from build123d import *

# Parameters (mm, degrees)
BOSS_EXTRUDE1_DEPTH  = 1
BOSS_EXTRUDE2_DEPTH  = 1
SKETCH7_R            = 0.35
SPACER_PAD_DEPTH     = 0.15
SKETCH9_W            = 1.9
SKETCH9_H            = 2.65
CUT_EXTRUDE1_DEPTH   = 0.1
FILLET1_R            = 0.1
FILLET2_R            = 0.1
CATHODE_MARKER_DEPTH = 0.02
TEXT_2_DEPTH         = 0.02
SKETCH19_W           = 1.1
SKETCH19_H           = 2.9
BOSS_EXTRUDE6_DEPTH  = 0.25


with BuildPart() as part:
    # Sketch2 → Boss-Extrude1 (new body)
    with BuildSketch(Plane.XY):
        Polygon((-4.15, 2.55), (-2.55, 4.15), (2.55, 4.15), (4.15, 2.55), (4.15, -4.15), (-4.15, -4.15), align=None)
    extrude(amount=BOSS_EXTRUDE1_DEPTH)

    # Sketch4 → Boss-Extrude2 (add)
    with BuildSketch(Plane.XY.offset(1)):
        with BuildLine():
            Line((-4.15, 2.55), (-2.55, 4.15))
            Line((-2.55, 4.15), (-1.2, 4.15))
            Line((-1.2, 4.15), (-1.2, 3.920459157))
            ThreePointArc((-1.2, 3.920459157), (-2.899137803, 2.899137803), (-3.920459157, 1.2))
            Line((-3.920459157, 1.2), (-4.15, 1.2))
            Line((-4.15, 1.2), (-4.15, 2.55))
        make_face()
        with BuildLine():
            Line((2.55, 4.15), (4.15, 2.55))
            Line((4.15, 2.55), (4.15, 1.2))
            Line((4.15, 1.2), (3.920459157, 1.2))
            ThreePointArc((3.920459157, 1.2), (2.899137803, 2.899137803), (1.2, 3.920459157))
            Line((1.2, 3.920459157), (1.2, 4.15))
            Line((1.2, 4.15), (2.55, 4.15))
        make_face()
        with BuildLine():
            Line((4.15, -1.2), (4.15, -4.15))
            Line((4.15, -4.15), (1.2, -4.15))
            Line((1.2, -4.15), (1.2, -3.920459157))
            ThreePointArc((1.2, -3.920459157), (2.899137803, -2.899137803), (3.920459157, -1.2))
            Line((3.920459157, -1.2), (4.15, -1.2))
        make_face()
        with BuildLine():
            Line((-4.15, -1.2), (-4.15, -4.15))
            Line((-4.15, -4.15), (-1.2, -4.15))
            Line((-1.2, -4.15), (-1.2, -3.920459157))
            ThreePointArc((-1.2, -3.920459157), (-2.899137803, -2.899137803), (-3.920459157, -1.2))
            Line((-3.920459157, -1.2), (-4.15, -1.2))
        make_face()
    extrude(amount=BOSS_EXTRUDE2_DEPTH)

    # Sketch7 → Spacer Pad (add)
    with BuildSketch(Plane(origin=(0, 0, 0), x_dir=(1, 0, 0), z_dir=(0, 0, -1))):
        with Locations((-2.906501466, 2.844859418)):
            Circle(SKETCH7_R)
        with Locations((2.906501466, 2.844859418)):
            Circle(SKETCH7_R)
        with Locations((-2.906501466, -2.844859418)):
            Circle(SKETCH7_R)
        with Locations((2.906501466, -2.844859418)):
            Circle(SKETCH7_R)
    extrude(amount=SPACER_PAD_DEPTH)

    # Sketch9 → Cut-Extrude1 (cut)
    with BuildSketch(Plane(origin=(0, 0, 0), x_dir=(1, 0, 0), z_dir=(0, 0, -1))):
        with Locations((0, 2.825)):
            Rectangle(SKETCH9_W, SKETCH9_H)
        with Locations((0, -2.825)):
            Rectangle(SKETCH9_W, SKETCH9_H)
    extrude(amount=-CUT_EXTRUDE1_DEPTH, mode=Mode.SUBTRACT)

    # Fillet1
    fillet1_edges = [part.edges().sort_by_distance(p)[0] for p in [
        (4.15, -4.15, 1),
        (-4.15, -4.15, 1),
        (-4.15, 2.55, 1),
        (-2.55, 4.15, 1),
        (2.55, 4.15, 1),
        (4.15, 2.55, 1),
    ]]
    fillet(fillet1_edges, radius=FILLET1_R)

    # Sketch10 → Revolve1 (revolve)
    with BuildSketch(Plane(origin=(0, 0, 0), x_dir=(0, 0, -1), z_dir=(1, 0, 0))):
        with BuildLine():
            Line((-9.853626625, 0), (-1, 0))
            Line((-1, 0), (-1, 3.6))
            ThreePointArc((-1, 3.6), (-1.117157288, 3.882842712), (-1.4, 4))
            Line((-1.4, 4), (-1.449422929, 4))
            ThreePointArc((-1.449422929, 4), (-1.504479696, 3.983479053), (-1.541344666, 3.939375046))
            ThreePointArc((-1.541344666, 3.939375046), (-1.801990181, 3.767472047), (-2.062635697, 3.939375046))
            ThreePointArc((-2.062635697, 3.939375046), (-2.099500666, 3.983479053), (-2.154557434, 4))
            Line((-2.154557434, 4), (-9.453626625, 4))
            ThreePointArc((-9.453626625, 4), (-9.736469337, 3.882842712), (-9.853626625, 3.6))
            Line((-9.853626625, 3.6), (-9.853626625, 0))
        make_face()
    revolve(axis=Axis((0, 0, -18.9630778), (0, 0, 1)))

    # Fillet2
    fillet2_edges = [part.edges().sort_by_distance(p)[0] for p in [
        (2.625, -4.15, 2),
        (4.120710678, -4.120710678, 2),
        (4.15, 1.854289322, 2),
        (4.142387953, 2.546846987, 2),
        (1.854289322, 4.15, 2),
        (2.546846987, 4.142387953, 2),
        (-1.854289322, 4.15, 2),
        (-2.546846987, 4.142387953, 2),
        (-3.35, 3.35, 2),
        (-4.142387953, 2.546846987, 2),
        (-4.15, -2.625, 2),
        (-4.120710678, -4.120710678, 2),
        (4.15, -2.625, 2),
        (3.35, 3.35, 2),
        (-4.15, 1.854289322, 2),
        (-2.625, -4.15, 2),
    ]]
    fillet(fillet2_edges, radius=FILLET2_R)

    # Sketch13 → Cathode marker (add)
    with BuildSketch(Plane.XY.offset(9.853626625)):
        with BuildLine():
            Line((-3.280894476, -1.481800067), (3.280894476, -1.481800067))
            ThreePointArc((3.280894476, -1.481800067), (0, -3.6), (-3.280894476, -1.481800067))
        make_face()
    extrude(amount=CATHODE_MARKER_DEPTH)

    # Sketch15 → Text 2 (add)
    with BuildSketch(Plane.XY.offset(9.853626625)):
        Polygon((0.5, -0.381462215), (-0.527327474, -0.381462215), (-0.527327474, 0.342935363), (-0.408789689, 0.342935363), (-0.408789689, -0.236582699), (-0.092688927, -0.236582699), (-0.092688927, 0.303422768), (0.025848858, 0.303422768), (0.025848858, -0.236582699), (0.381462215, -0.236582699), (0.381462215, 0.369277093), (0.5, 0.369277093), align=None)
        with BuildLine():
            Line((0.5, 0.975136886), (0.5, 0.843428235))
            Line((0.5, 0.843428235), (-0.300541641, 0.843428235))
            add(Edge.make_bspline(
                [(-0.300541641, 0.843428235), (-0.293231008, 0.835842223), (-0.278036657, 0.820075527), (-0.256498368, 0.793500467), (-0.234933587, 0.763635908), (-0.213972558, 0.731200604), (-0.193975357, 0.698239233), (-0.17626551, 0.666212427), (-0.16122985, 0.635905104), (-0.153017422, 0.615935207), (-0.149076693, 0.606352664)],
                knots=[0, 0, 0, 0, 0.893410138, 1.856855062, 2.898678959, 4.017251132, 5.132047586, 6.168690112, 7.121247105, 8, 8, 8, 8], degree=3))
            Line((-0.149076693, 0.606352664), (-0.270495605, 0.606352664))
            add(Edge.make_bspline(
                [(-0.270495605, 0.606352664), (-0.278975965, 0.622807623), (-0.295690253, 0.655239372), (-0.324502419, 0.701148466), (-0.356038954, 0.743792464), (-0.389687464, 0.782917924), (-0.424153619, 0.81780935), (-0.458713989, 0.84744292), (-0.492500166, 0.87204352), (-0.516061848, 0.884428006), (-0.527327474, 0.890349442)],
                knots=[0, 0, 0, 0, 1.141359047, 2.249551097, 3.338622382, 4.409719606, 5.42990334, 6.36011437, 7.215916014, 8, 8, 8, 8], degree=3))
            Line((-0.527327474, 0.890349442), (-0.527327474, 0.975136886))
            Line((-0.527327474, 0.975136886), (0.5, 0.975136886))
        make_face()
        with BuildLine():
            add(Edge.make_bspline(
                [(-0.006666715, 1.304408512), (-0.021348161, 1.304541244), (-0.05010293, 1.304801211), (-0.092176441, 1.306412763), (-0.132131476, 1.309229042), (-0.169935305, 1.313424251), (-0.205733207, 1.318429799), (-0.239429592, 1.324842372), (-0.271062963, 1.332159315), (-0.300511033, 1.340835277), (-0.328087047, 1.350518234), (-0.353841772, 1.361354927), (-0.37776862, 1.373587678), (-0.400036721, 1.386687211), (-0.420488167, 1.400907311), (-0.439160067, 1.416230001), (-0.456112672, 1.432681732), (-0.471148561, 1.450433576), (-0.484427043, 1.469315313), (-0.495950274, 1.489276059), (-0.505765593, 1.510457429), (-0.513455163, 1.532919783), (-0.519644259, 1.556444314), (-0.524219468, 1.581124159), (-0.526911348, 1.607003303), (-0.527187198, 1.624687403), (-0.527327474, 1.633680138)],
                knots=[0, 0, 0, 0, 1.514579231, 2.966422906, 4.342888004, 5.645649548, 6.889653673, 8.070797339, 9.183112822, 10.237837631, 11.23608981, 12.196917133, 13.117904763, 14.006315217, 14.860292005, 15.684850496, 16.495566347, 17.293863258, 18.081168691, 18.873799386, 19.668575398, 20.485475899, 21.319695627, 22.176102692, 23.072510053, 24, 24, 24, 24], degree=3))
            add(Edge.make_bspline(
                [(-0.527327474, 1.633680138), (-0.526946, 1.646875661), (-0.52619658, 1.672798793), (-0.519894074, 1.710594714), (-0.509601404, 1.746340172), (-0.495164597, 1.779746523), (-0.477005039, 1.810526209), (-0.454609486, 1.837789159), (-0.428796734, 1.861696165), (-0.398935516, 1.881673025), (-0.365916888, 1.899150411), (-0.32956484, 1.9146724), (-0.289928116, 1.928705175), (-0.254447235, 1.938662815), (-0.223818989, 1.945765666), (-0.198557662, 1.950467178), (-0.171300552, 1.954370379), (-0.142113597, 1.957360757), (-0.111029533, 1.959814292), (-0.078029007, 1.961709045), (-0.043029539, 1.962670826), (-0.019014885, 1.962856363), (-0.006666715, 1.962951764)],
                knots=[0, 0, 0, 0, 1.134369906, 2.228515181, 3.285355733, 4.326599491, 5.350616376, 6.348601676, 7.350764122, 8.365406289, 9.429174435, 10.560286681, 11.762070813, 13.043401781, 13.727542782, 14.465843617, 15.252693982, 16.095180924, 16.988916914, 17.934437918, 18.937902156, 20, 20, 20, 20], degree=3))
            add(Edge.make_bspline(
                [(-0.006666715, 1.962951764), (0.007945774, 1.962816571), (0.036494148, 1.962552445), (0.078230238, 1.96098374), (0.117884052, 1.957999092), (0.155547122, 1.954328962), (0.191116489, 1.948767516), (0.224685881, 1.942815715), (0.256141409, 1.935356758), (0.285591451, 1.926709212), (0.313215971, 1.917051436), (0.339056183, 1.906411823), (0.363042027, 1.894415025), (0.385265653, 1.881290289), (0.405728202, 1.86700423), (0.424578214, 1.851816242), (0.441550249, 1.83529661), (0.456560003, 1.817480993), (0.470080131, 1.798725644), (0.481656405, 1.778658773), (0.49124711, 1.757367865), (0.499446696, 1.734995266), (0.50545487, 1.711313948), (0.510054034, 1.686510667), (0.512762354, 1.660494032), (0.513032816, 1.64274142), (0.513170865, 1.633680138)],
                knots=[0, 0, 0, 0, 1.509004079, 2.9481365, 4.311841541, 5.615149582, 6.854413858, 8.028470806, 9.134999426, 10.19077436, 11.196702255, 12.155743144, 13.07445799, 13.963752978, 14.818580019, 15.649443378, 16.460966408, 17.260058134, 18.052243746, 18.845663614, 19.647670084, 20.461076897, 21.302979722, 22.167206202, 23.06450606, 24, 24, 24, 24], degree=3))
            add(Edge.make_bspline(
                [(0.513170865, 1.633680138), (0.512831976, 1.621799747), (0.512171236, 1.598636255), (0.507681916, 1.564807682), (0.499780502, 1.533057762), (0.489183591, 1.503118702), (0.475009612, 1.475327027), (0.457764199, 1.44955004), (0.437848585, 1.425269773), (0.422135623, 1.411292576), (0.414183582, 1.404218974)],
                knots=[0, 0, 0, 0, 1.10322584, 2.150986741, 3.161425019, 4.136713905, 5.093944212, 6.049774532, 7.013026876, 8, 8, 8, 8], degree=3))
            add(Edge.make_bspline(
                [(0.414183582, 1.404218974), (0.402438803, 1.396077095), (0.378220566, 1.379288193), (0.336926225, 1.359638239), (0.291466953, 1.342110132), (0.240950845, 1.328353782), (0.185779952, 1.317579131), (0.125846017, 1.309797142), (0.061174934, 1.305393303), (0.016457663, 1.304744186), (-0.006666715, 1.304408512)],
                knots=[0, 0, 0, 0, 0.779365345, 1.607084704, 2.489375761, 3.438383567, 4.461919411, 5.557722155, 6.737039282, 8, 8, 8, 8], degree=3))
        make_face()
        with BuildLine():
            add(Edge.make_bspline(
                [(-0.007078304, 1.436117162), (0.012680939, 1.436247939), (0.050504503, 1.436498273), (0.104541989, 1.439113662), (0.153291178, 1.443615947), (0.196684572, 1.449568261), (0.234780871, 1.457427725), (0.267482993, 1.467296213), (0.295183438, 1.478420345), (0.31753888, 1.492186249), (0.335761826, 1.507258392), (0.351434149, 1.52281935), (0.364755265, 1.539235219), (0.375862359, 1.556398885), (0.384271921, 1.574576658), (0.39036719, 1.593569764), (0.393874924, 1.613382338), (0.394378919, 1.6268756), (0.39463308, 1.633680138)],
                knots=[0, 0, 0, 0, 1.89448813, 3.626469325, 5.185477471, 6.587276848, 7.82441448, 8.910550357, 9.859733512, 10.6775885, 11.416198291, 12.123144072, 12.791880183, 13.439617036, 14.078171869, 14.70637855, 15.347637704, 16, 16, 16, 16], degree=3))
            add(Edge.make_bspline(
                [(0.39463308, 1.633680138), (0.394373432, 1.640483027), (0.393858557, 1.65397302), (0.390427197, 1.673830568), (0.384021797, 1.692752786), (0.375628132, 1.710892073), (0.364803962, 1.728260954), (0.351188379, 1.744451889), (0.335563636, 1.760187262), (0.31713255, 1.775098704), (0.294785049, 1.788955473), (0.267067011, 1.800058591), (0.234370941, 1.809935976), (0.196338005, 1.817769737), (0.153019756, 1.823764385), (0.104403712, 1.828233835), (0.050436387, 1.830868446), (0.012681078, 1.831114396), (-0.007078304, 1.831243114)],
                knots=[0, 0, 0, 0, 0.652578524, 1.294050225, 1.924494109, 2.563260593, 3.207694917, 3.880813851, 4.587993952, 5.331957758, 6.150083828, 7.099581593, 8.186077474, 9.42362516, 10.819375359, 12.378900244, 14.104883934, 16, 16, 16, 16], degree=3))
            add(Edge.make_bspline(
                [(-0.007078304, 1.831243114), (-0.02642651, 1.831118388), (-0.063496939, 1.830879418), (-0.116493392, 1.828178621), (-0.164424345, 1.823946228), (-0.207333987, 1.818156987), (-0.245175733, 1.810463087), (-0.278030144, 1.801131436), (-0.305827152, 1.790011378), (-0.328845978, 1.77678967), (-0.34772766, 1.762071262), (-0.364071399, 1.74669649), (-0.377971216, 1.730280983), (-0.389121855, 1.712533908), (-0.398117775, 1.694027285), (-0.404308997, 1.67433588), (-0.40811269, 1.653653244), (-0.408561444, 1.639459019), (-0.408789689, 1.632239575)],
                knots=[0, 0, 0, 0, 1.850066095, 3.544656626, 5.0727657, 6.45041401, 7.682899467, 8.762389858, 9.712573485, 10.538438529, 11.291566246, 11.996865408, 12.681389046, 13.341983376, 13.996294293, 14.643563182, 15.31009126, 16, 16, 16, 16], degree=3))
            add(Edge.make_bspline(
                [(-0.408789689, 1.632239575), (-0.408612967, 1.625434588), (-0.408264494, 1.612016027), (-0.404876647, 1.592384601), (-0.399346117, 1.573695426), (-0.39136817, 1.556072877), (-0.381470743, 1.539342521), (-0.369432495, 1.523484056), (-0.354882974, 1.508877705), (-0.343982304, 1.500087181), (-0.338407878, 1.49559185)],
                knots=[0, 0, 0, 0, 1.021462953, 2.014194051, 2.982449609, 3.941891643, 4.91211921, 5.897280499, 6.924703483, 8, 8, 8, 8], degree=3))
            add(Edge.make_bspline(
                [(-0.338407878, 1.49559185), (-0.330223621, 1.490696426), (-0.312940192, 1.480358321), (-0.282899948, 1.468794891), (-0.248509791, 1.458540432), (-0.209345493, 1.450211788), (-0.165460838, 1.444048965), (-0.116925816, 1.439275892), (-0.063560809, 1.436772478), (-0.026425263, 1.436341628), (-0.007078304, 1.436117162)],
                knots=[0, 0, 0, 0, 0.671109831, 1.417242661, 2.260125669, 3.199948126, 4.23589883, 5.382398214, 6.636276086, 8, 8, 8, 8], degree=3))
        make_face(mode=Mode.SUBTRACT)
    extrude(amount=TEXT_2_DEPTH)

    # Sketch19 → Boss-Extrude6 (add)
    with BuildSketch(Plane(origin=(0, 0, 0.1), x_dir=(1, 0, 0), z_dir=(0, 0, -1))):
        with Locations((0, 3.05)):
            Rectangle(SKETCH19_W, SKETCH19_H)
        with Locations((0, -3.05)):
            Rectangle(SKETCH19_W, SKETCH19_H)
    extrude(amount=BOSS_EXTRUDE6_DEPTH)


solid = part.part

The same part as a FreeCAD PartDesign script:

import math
import FreeCAD as App
import Part
import Sketcher


def edges_at(feature, points):
    """Names of the edges that pass closest to the given points."""
    edges = feature.Shape.Edges
    near = lambda p: min(range(len(edges)), key=lambda i: edges[i].distToShape(Part.Vertex(*p))[0])
    return sorted({f"Edge{near(p) + 1}" for p in points})

doc = App.newDocument("Part")
body = doc.addObject("PartDesign::Body", "Body")

# Sketch on XY plane
sketch1 = body.newObject("Sketcher::SketchObject", "Sketch")
sketch1.AttachmentSupport = (doc.getObject("XY_Plane"), [""])
sketch1.MapMode = "FlatFace"
sketch1.addGeometry(Part.LineSegment(App.Vector(-2.5, 4.2, 0), App.Vector(-4.2, 2.5, 0)), False)
sketch1.addGeometry(Part.LineSegment(App.Vector(-4.2, 2.5, 0), App.Vector(-4.2, -4.2, 0)), False)
sketch1.addGeometry(Part.LineSegment(App.Vector(-4.2, -4.2, 0), App.Vector(4.2, -4.2, 0)), False)
sketch1.addGeometry(Part.LineSegment(App.Vector(4.2, -4.2, 0), App.Vector(4.2, 2.5, 0)), False)
sketch1.addGeometry(Part.LineSegment(App.Vector(4.2, 2.5, 0), App.Vector(2.5, 4.2, 0)), False)
sketch1.addGeometry(Part.LineSegment(App.Vector(2.5, 4.2, 0), App.Vector(-2.5, 4.2, 0)), False)
sketch1.addConstraint(Sketcher.Constraint("Coincident", 0, 2, 1, 1))
sketch1.addConstraint(Sketcher.Constraint("Coincident", 1, 2, 2, 1))
sketch1.addConstraint(Sketcher.Constraint("Coincident", 2, 2, 3, 1))
sketch1.addConstraint(Sketcher.Constraint("Coincident", 3, 2, 4, 1))
sketch1.addConstraint(Sketcher.Constraint("Coincident", 4, 2, 5, 1))
sketch1.addConstraint(Sketcher.Constraint("Coincident", 5, 2, 0, 1))
sketch1.addConstraint(Sketcher.Constraint("Vertical", 1))
sketch1.addConstraint(Sketcher.Constraint("Horizontal", 2))
sketch1.addConstraint(Sketcher.Constraint("Vertical", 3))
sketch1.addConstraint(Sketcher.Constraint("Horizontal", 5))
sketch1.addConstraint(Sketcher.Constraint("Symmetric", 0, 2, 3, 2, -2))
sketch1.addConstraint(Sketcher.Constraint("Perpendicular", 0, 4))
sketch1.addConstraint(Sketcher.Constraint("Equal", 0, 4))
sketch1.addConstraint(Sketcher.Constraint("DistanceX", 2, 1, 2, 2, 8.3))
sketch1.addConstraint(Sketcher.Constraint("DistanceX", 5, 2, 5, 1, 5.1))
sketch1.addConstraint(Sketcher.Constraint("DistanceY", 1, 2, 1, 1, 6.7))
sketch1.addConstraint(Sketcher.Constraint("DistanceY", -1, 1, 0, 2, 2.55))
pad1 = body.newObject("PartDesign::Pad", "Pad")
pad1.Profile = sketch1
pad1.Length = 1

# Sketch on XY plane
sketch2 = body.newObject("Sketcher::SketchObject", "Sketch001")
sketch2.AttachmentSupport = (doc.getObject("XY_Plane"), [""])
sketch2.MapMode = "FlatFace"
sketch2.AttachmentOffset = App.Placement(App.Vector(0, 0, 1), App.Rotation())
sketch2.addGeometry(Part.LineSegment(App.Vector(-2.55, 4.15, 0), App.Vector(-4.15, 2.55, 0)), False)
sketch2.addGeometry(Part.LineSegment(App.Vector(-4.15, 2.55, 0), App.Vector(-4.15, 1.2, 0)), False)
sketch2.addGeometry(Part.LineSegment(App.Vector(-4.15, 1.2, 0), App.Vector(-3.92, 1.2, 0)), False)
sketch2.addGeometry(Part.ArcOfCircle(Part.Circle(App.Vector(0, 0, 0), App.Vector(0, 0, 1), 4.1), math.radians(107), math.radians(163)), False)
sketch2.addGeometry(Part.LineSegment(App.Vector(-1.2, 3.92, 0), App.Vector(-1.2, 4.15, 0)), False)
sketch2.addGeometry(Part.LineSegment(App.Vector(-1.2, 4.15, 0), App.Vector(-2.55, 4.15, 0)), False)
sketch2.addGeometry(Part.LineSegment(App.Vector(4.15, 2.55, 0), App.Vector(2.55, 4.15, 0)), False)
sketch2.addGeometry(Part.LineSegment(App.Vector(2.55, 4.15, 0), App.Vector(1.2, 4.15, 0)), False)
sketch2.addGeometry(Part.LineSegment(App.Vector(1.2, 4.15, 0), App.Vector(1.2, 3.92, 0)), False)
sketch2.addGeometry(Part.ArcOfCircle(Part.Circle(App.Vector(0, 0, 0), App.Vector(0, 0, 1), 4.1), math.radians(17), math.radians(73)), False)
sketch2.addGeometry(Part.LineSegment(App.Vector(3.92, 1.2, 0), App.Vector(4.15, 1.2, 0)), False)
sketch2.addGeometry(Part.LineSegment(App.Vector(4.15, 1.2, 0), App.Vector(4.15, 2.55, 0)), False)
sketch2.addGeometry(Part.LineSegment(App.Vector(4.15, -4.15, 0), App.Vector(4.15, -1.2, 0)), False)
sketch2.addGeometry(Part.LineSegment(App.Vector(4.15, -1.2, 0), App.Vector(3.92, -1.2, 0)), False)
sketch2.addGeometry(Part.ArcOfCircle(Part.Circle(App.Vector(0, 0, 0), App.Vector(0, 0, 1), 4.1), math.radians(-73), math.radians(-17)), False)
sketch2.addGeometry(Part.LineSegment(App.Vector(1.2, -3.92, 0), App.Vector(1.2, -4.15, 0)), False)
sketch2.addGeometry(Part.LineSegment(App.Vector(1.2, -4.15, 0), App.Vector(4.15, -4.15, 0)), False)
sketch2.addGeometry(Part.LineSegment(App.Vector(-4.15, -1.2, 0), App.Vector(-4.15, -4.15, 0)), False)
sketch2.addGeometry(Part.LineSegment(App.Vector(-4.15, -4.15, 0), App.Vector(-1.2, -4.15, 0)), False)
sketch2.addGeometry(Part.LineSegment(App.Vector(-1.2, -4.15, 0), App.Vector(-1.2, -3.92, 0)), False)
sketch2.addGeometry(Part.ArcOfCircle(Part.Circle(App.Vector(0, 0, 0), App.Vector(0, 0, 1), 4.1), math.radians(-163), math.radians(-107)), False)
sketch2.addGeometry(Part.LineSegment(App.Vector(-3.92, -1.2, 0), App.Vector(-4.15, -1.2, 0)), False)
sketch2.addConstraint(Sketcher.Constraint("Coincident", 0, 2, 1, 1))
sketch2.addConstraint(Sketcher.Constraint("Coincident", 1, 2, 2, 1))
sketch2.addConstraint(Sketcher.Constraint("Coincident", 2, 2, 3, 2))
sketch2.addConstraint(Sketcher.Constraint("Coincident", 3, 1, 4, 1))
sketch2.addConstraint(Sketcher.Constraint("Coincident", 4, 2, 5, 1))
sketch2.addConstraint(Sketcher.Constraint("Coincident", 5, 2, 0, 1))
sketch2.addConstraint(Sketcher.Constraint("Coincident", 6, 2, 7, 1))
sketch2.addConstraint(Sketcher.Constraint("Coincident", 7, 2, 8, 1))
sketch2.addConstraint(Sketcher.Constraint("Coincident", 8, 2, 9, 2))
sketch2.addConstraint(Sketcher.Constraint("Coincident", 9, 1, 10, 1))
sketch2.addConstraint(Sketcher.Constraint("Coincident", 10, 2, 11, 1))
sketch2.addConstraint(Sketcher.Constraint("Coincident", 11, 2, 6, 1))
sketch2.addConstraint(Sketcher.Constraint("Coincident", 12, 2, 13, 1))
sketch2.addConstraint(Sketcher.Constraint("Coincident", 13, 2, 14, 2))
sketch2.addConstraint(Sketcher.Constraint("Coincident", 14, 1, 15, 1))
sketch2.addConstraint(Sketcher.Constraint("Coincident", 15, 2, 16, 1))
sketch2.addConstraint(Sketcher.Constraint("Coincident", 16, 2, 12, 1))
sketch2.addConstraint(Sketcher.Constraint("Coincident", 17, 2, 18, 1))
sketch2.addConstraint(Sketcher.Constraint("Coincident", 18, 2, 19, 1))
sketch2.addConstraint(Sketcher.Constraint("Coincident", 19, 2, 20, 2))
sketch2.addConstraint(Sketcher.Constraint("Coincident", 20, 1, 21, 1))
sketch2.addConstraint(Sketcher.Constraint("Coincident", 21, 2, 17, 1))
sketch2.addConstraint(Sketcher.Constraint("Vertical", 1))
sketch2.addConstraint(Sketcher.Constraint("Horizontal", 2))
sketch2.addConstraint(Sketcher.Constraint("Vertical", 4))
sketch2.addConstraint(Sketcher.Constraint("Horizontal", 5))
sketch2.addConstraint(Sketcher.Constraint("Horizontal", 7))
sketch2.addConstraint(Sketcher.Constraint("Vertical", 8))
sketch2.addConstraint(Sketcher.Constraint("Horizontal", 10))
sketch2.addConstraint(Sketcher.Constraint("Vertical", 11))
sketch2.addConstraint(Sketcher.Constraint("Vertical", 12))
sketch2.addConstraint(Sketcher.Constraint("Horizontal", 13))
sketch2.addConstraint(Sketcher.Constraint("Vertical", 15))
sketch2.addConstraint(Sketcher.Constraint("Horizontal", 16))
sketch2.addConstraint(Sketcher.Constraint("Vertical", 17))
sketch2.addConstraint(Sketcher.Constraint("Horizontal", 18))
sketch2.addConstraint(Sketcher.Constraint("Vertical", 19))
sketch2.addConstraint(Sketcher.Constraint("Horizontal", 21))
sketch2.addConstraint(Sketcher.Constraint("Coincident", 3, 3, -1, 1))
sketch2.addConstraint(Sketcher.Constraint("Coincident", 9, 3, -1, 1))
sketch2.addConstraint(Sketcher.Constraint("Coincident", 14, 3, -1, 1))
sketch2.addConstraint(Sketcher.Constraint("Coincident", 20, 3, -1, 1))
sketch2.addConstraint(Sketcher.Constraint("Equal", 3, 9))
sketch2.addConstraint(Sketcher.Constraint("Equal", 9, 14))
sketch2.addConstraint(Sketcher.Constraint("Equal", 14, 20))
sketch2.addConstraint(Sketcher.Constraint("Symmetric", 1, 2, 12, 2, -1, 1))
sketch2.addConstraint(Sketcher.Constraint("Symmetric", 4, 2, 15, 2, -1, 1))
sketch2.addConstraint(Sketcher.Constraint("Symmetric", 7, 2, 18, 2, -1, 1))
sketch2.addConstraint(Sketcher.Constraint("Symmetric", 10, 2, 21, 2, -1, 1))
sketch2.addConstraint(Sketcher.Constraint("Symmetric", 5, 2, 6, 2, -2))
sketch2.addConstraint(Sketcher.Constraint("Symmetric", 1, 2, 10, 2, -2))
sketch2.addConstraint(Sketcher.Constraint("Perpendicular", 0, 6))
sketch2.addConstraint(Sketcher.Constraint("Horizontal", 3, 1, 8, 2))
sketch2.addConstraint(Sketcher.Constraint("Horizontal", 0, 2, 11, 2))
sketch2.addConstraint(Sketcher.Constraint("Equal", 7, 1))
sketch2.addConstraint(Sketcher.Constraint("Equal", 21, 4))
sketch2.addConstraint(Sketcher.Constraint("Radius", 3, 4.1))
sketch2.addConstraint(Sketcher.Constraint("DistanceX", 5, 2, 5, 1, 1.35))
sketch2.addConstraint(Sketcher.Constraint("DistanceX", 16, 1, 16, 2, 2.95))
sketch2.addConstraint(Sketcher.Constraint("DistanceY", -1, 1, 1, 2, 1.2))
pad2 = body.newObject("PartDesign::Pad", "Pad001")
pad2.Profile = sketch2
pad2.Length = 1

# Sketch on XY plane
sketch3 = body.newObject("Sketcher::SketchObject", "Sketch002")
sketch3.AttachmentSupport = (doc.getObject("XY_Plane"), [""])
sketch3.MapMode = "FlatFace"
sketch3.addGeometry(Part.Circle(App.Vector(-2.91, -2.84, 0), App.Vector(0, 0, 1), 0.35), False)
sketch3.addGeometry(Part.Circle(App.Vector(2.91, -2.84, 0), App.Vector(0, 0, 1), 0.35), False)
sketch3.addGeometry(Part.Circle(App.Vector(-2.91, 2.84, 0), App.Vector(0, 0, 1), 0.35), False)
sketch3.addGeometry(Part.Circle(App.Vector(2.91, 2.84, 0), App.Vector(0, 0, 1), 0.35), False)
sketch3.addConstraint(Sketcher.Constraint("Equal", 0, 1))
sketch3.addConstraint(Sketcher.Constraint("Equal", 1, 2))
sketch3.addConstraint(Sketcher.Constraint("Equal", 2, 3))
sketch3.addConstraint(Sketcher.Constraint("Symmetric", 1, 3, 2, 3, -1, 1))
sketch3.addConstraint(Sketcher.Constraint("Symmetric", 0, 3, 3, 3, -1, 1))
sketch3.addConstraint(Sketcher.Constraint("Symmetric", 0, 3, 1, 3, -2))
sketch3.addConstraint(Sketcher.Constraint("Diameter", 0, 0.7))
sketch3.addConstraint(Sketcher.Constraint("DistanceX", 0, 3, -1, 1, 2.906501))
sketch3.addConstraint(Sketcher.Constraint("DistanceY", 0, 3, -1, 1, 2.844859))
pad3 = body.newObject("PartDesign::Pad", "Pad002")
pad3.Profile = sketch3
pad3.Length = 0.15
pad3.Reversed = True

# Sketch on XY plane
sketch4 = body.newObject("Sketcher::SketchObject", "Sketch003")
sketch4.AttachmentSupport = (doc.getObject("XY_Plane"), [""])
sketch4.MapMode = "FlatFace"
sketch4.addGeometry(Part.LineSegment(App.Vector(-0.9, -4.2, 0), App.Vector(-0.9, -1.5, 0)), False)
sketch4.addGeometry(Part.LineSegment(App.Vector(-0.9, -1.5, 0), App.Vector(0.9, -1.5, 0)), False)
sketch4.addGeometry(Part.LineSegment(App.Vector(0.9, -1.5, 0), App.Vector(0.9, -4.2, 0)), False)
sketch4.addGeometry(Part.LineSegment(App.Vector(0.9, -4.2, 0), App.Vector(-0.9, -4.2, 0)), False)
sketch4.addGeometry(Part.LineSegment(App.Vector(-0.9, 1.5, 0), App.Vector(-0.9, 4.2, 0)), False)
sketch4.addGeometry(Part.LineSegment(App.Vector(-0.9, 4.2, 0), App.Vector(0.9, 4.2, 0)), False)
sketch4.addGeometry(Part.LineSegment(App.Vector(0.9, 4.2, 0), App.Vector(0.9, 1.5, 0)), False)
sketch4.addGeometry(Part.LineSegment(App.Vector(0.9, 1.5, 0), App.Vector(-0.9, 1.5, 0)), False)
sketch4.addConstraint(Sketcher.Constraint("Coincident", 0, 2, 1, 1))
sketch4.addConstraint(Sketcher.Constraint("Coincident", 1, 2, 2, 1))
sketch4.addConstraint(Sketcher.Constraint("Coincident", 2, 2, 3, 1))
sketch4.addConstraint(Sketcher.Constraint("Coincident", 3, 2, 0, 1))
sketch4.addConstraint(Sketcher.Constraint("Coincident", 4, 2, 5, 1))
sketch4.addConstraint(Sketcher.Constraint("Coincident", 5, 2, 6, 1))
sketch4.addConstraint(Sketcher.Constraint("Coincident", 6, 2, 7, 1))
sketch4.addConstraint(Sketcher.Constraint("Coincident", 7, 2, 4, 1))
sketch4.addConstraint(Sketcher.Constraint("Vertical", 0))
sketch4.addConstraint(Sketcher.Constraint("Horizontal", 1))
sketch4.addConstraint(Sketcher.Constraint("Vertical", 2))
sketch4.addConstraint(Sketcher.Constraint("Horizontal", 3))
sketch4.addConstraint(Sketcher.Constraint("Vertical", 4))
sketch4.addConstraint(Sketcher.Constraint("Horizontal", 5))
sketch4.addConstraint(Sketcher.Constraint("Vertical", 6))
sketch4.addConstraint(Sketcher.Constraint("Horizontal", 7))
sketch4.addConstraint(Sketcher.Constraint("Symmetric", 2, 2, 4, 2, -1, 1))
sketch4.addConstraint(Sketcher.Constraint("Symmetric", 0, 2, 6, 2, -1, 1))
sketch4.addConstraint(Sketcher.Constraint("Vertical", 3, 2, 4, 2))
sketch4.addConstraint(Sketcher.Constraint("DistanceX", 1, 1, 1, 2, 1.9))
sketch4.addConstraint(Sketcher.Constraint("DistanceY", 1, 2, 6, 2, 3.0))
sketch4.addConstraint(Sketcher.Constraint("DistanceY", 0, 1, 0, 2, 2.65))
pocket1 = body.newObject("PartDesign::Pocket", "Pocket")
pocket1.Profile = sketch4
pocket1.Length = 0.1
pocket1.Reversed = True
doc.recompute()

fillet = body.newObject("PartDesign::Fillet", "Fillet")
fillet.Base = (pocket1, edges_at(pocket1, [
    (4.15, -4.15, 1),
    (-4.15, -4.15, 1),
    (-4.15, 2.55, 1),
    (-2.55, 4.15, 1),
    (2.55, 4.15, 1),
    (4.15, 2.55, 1),
]))
fillet.Radius = 0.1

# Sketch on YZ plane
sketch5 = body.newObject("Sketcher::SketchObject", "Sketch004")
sketch5.AttachmentSupport = (doc.getObject("YZ_Plane"), [""])
sketch5.MapMode = "FlatFace"
sketch5.addGeometry(Part.LineSegment(App.Vector(0, 9.854, 0), App.Vector(0, 1, 0)), False)
sketch5.addGeometry(Part.LineSegment(App.Vector(0, 1, 0), App.Vector(3.6, 1, 0)), False)
sketch5.addGeometry(Part.ArcOfCircle(Part.Circle(App.Vector(3.6, 1.4, 0), App.Vector(0, 0, 1), 0.4), math.radians(-90), math.radians(0)), False)
sketch5.addGeometry(Part.LineSegment(App.Vector(4, 1.4, 0), App.Vector(4, 1.449, 0)), False)
sketch5.addGeometry(Part.ArcOfCircle(Part.Circle(App.Vector(3.9, 1.449, 0), App.Vector(0, 0, 1), 0.1), math.radians(0), math.radians(67)), False)
sketch5.addGeometry(Part.ArcOfCircle(Part.Circle(App.Vector(4.051, 1.802, 0), App.Vector(0, 0, 1), 0.284), math.radians(113), math.radians(247)), False)
sketch5.addGeometry(Part.ArcOfCircle(Part.Circle(App.Vector(3.9, 2.155, 0), App.Vector(0, 0, 1), 0.1), math.radians(-67), math.radians(0)), False)
sketch5.addGeometry(Part.LineSegment(App.Vector(4, 2.155, 0), App.Vector(4, 9.454, 0)), False)
sketch5.addGeometry(Part.ArcOfCircle(Part.Circle(App.Vector(3.6, 9.454, 0), App.Vector(0, 0, 1), 0.4), math.radians(0), math.radians(90)), False)
sketch5.addGeometry(Part.LineSegment(App.Vector(3.6, 9.854, 0), App.Vector(0, 9.854, 0)), False)
sketch5.addConstraint(Sketcher.Constraint("Coincident", 0, 2, 1, 1))
sketch5.addConstraint(Sketcher.Constraint("Tangent", 1, 2, 2, 1))
sketch5.addConstraint(Sketcher.Constraint("Tangent", 2, 2, 3, 1))
sketch5.addConstraint(Sketcher.Constraint("Tangent", 3, 2, 4, 1))
sketch5.addConstraint(Sketcher.Constraint("Tangent", 4, 2, 5, 2))
sketch5.addConstraint(Sketcher.Constraint("Tangent", 5, 1, 6, 1))
sketch5.addConstraint(Sketcher.Constraint("Tangent", 6, 2, 7, 1))
sketch5.addConstraint(Sketcher.Constraint("Tangent", 7, 2, 8, 1))
sketch5.addConstraint(Sketcher.Constraint("Tangent", 8, 2, 9, 1))
sketch5.addConstraint(Sketcher.Constraint("Coincident", 9, 2, 0, 1))
sketch5.addConstraint(Sketcher.Constraint("Vertical", 0))
sketch5.addConstraint(Sketcher.Constraint("Horizontal", 1))
sketch5.addConstraint(Sketcher.Constraint("Vertical", 3))
sketch5.addConstraint(Sketcher.Constraint("Vertical", 7))
sketch5.addConstraint(Sketcher.Constraint("Horizontal", 9))
sketch5.addConstraint(Sketcher.Constraint("Equal", 4, 6))
sketch5.addConstraint(Sketcher.Constraint("Equal", 2, 8))
sketch5.addConstraint(Sketcher.Constraint("PointOnObject", 0, 2, -2))
sketch5.addConstraint(Sketcher.Constraint("Vertical", 4, 3, 6, 3))
sketch5.addConstraint(Sketcher.Constraint("Radius", 2, 0.4))
sketch5.addConstraint(Sketcher.Constraint("Radius", 4, 0.1))
sketch5.addConstraint(Sketcher.Constraint("DistanceX", 1, 1, 1, 2, 3.6))
sketch5.addConstraint(Sketcher.Constraint("DistanceY", -1, 1, 0, 2, 1.0))
sketch5.addConstraint(Sketcher.Constraint("Radius", 5, 0.283552))
sketch5.addConstraint(Sketcher.Constraint("DistanceY", 7, 1, 7, 2, 7.299069))
sketch5.addConstraint(Sketcher.Constraint("DistanceY", 0, 2, 0, 1, 8.853627))
sketch5.addConstraint(Sketcher.Constraint("DistanceY", 3, 1, 3, 2, 0.049423))
revolution = body.newObject("PartDesign::Revolution", "Revolution")
revolution.Profile = sketch5
revolution.ReferenceAxis = (sketch5, ["V_Axis"])
revolution.Angle = 360
doc.recompute()

fillet2 = body.newObject("PartDesign::Fillet", "Fillet001")
fillet2.Base = (revolution, edges_at(revolution, [
    (2.625, -4.15, 2),
    (4.121, -4.121, 2),
    (4.15, 1.854, 2),
    (4.142, 2.547, 2),
    (1.854, 4.15, 2),
    (2.547, 4.142, 2),
    (-1.854, 4.15, 2),
    (-2.547, 4.142, 2),
    (-3.35, 3.35, 2),
    (-4.142, 2.547, 2),
    (-4.15, -2.625, 2),
    (-4.121, -4.121, 2),
    (4.15, -2.625, 2),
    (3.35, 3.35, 2),
    (-4.15, 1.854, 2),
    (-2.625, -4.15, 2),
]))
fillet2.Radius = 0.1

# Sketch on XY plane
sketch6 = body.newObject("Sketcher::SketchObject", "Sketch005")
sketch6.AttachmentSupport = (doc.getObject("XY_Plane"), [""])
sketch6.MapMode = "FlatFace"
sketch6.AttachmentOffset = App.Placement(App.Vector(0, 0, 9.853627), App.Rotation())
sketch6.addGeometry(Part.LineSegment(App.Vector(3.3, -1.5, 0), App.Vector(-3.3, -1.5, 0)), False)
sketch6.addGeometry(Part.ArcOfCircle(Part.Circle(App.Vector(0, 0, 0), App.Vector(0, 0, 1), 3.6), math.radians(-156), math.radians(-24)), False)
sketch6.addConstraint(Sketcher.Constraint("Coincident", 0, 1, 1, 2))
sketch6.addConstraint(Sketcher.Constraint("Coincident", 1, 1, 0, 2))
sketch6.addConstraint(Sketcher.Constraint("Horizontal", 0))
sketch6.addConstraint(Sketcher.Constraint("Coincident", 1, 3, -1, 1))
sketch6.addConstraint(Sketcher.Constraint("Radius", 1, 3.6))
sketch6.addConstraint(Sketcher.Constraint("DistanceX", 0, 2, 0, 1, 6.561789))
pad4 = body.newObject("PartDesign::Pad", "Pad003")
pad4.Profile = sketch6
pad4.Length = 0.02

# Sketch on XY plane
sketch7 = body.newObject("Sketcher::SketchObject", "Sketch006")
sketch7.AttachmentSupport = (doc.getObject("XY_Plane"), [""])
sketch7.MapMode = "FlatFace"
sketch7.AttachmentOffset = App.Placement(App.Vector(0, 0, 9.853627), App.Rotation())
sketch7.addGeometry(Part.LineSegment(App.Vector(-0.527327, -0.381462, 0), App.Vector(0.5, -0.381462, 0)), False)
sketch7.addGeometry(Part.LineSegment(App.Vector(0.5, -0.381462, 0), App.Vector(0.5, 0.369277, 0)), False)
sketch7.addGeometry(Part.LineSegment(App.Vector(0.5, 0.369277, 0), App.Vector(0.381462, 0.369277, 0)), False)
sketch7.addGeometry(Part.LineSegment(App.Vector(0.381462, 0.369277, 0), App.Vector(0.381462, -0.236583, 0)), False)
sketch7.addGeometry(Part.LineSegment(App.Vector(0.381462, -0.236583, 0), App.Vector(0.025849, -0.236583, 0)), False)
sketch7.addGeometry(Part.LineSegment(App.Vector(0.025849, -0.236583, 0), App.Vector(0.025849, 0.303423, 0)), False)
sketch7.addGeometry(Part.LineSegment(App.Vector(0.025849, 0.303423, 0), App.Vector(-0.092689, 0.303423, 0)), False)
sketch7.addGeometry(Part.LineSegment(App.Vector(-0.092689, 0.303423, 0), App.Vector(-0.092689, -0.236583, 0)), False)
sketch7.addGeometry(Part.LineSegment(App.Vector(-0.092689, -0.236583, 0), App.Vector(-0.40879, -0.236583, 0)), False)
sketch7.addGeometry(Part.LineSegment(App.Vector(-0.40879, -0.236583, 0), App.Vector(-0.40879, 0.342935, 0)), False)
sketch7.addGeometry(Part.LineSegment(App.Vector(-0.40879, 0.342935, 0), App.Vector(-0.527327, 0.342935, 0)), False)
sketch7.addGeometry(Part.LineSegment(App.Vector(-0.527327, 0.342935, 0), App.Vector(-0.527327, -0.381462, 0)), False)
sketch7.addGeometry(Part.LineSegment(App.Vector(0.5, 0.843428, 0), App.Vector(0.5, 0.975137, 0)), False)
sketch7.addGeometry(Part.LineSegment(App.Vector(0.5, 0.975137, 0), App.Vector(-0.527327, 0.975137, 0)), False)
sketch7.addGeometry(Part.LineSegment(App.Vector(-0.527327, 0.975137, 0), App.Vector(-0.527327, 0.890349, 0)), False)
sketch7.addGeometry(Part.BSplineCurve([App.Vector(-0.270496, 0.606353, 0), App.Vector(-0.278976, 0.622808, 0), App.Vector(-0.29569, 0.655239, 0), App.Vector(-0.324502, 0.701148, 0), App.Vector(-0.356039, 0.743792, 0), App.Vector(-0.389687, 0.782918, 0), App.Vector(-0.424154, 0.817809, 0), App.Vector(-0.458714, 0.847443, 0), App.Vector(-0.4925, 0.872044, 0), App.Vector(-0.516062, 0.884428, 0), App.Vector(-0.527327, 0.890349, 0)], [4, 1, 1, 1, 1, 1, 1, 1, 4], [0, 1.141359047, 2.249551097, 3.338622382, 4.409719606, 5.42990334, 6.36011437, 7.215916014, 8], False, 3, [1, 1, 1, 1, 1, 1, 1, 1, 1, 1, 1], False), False)
sketch7.addGeometry(Part.LineSegment(App.Vector(-0.270496, 0.606353, 0), App.Vector(-0.149077, 0.606353, 0)), False)
sketch7.addGeometry(Part.BSplineCurve([App.Vector(-0.300542, 0.843428, 0), App.Vector(-0.293231, 0.835842, 0), App.Vector(-0.278037, 0.820076, 0), App.Vector(-0.256498, 0.7935, 0), App.Vector(-0.234934, 0.763636, 0), App.Vector(-0.213973, 0.731201, 0), App.Vector(-0.193975, 0.698239, 0), App.Vector(-0.176266, 0.666212, 0), App.Vector(-0.16123, 0.635905, 0), App.Vector(-0.153017, 0.615935, 0), App.Vector(-0.149077, 0.606353, 0)], [4, 1, 1, 1, 1, 1, 1, 1, 4], [0, 0.893410138, 1.856855062, 2.898678959, 4.017251132, 5.132047586, 6.168690112, 7.121247105, 8], False, 3, [1, 1, 1, 1, 1, 1, 1, 1, 1, 1, 1], False), False)
sketch7.addGeometry(Part.LineSegment(App.Vector(-0.300542, 0.843428, 0), App.Vector(0.5, 0.843428, 0)), False)
sketch7.addGeometry(Part.BSplineCurve([App.Vector(-0.006667, 1.304409, 0), App.Vector(-0.021348, 1.304541, 0), App.Vector(-0.050103, 1.304801, 0), App.Vector(-0.092176, 1.306413, 0), App.Vector(-0.132131, 1.309229, 0), App.Vector(-0.169935, 1.313424, 0), App.Vector(-0.205733, 1.31843, 0), App.Vector(-0.23943, 1.324842, 0), App.Vector(-0.271063, 1.332159, 0), App.Vector(-0.300511, 1.340835, 0), App.Vector(-0.328087, 1.350518, 0), App.Vector(-0.353842, 1.361355, 0), App.Vector(-0.377769, 1.373588, 0), App.Vector(-0.400037, 1.386687, 0), App.Vector(-0.420488, 1.400907, 0), App.Vector(-0.43916, 1.41623, 0), App.Vector(-0.456113, 1.432682, 0), App.Vector(-0.471149, 1.450434, 0), App.Vector(-0.484427, 1.469315, 0), App.Vector(-0.49595, 1.489276, 0), App.Vector(-0.505766, 1.510457, 0), App.Vector(-0.513455, 1.53292, 0), App.Vector(-0.519644, 1.556444, 0), App.Vector(-0.524219, 1.581124, 0), App.Vector(-0.526911, 1.607003, 0), App.Vector(-0.527187, 1.624687, 0), App.Vector(-0.527327, 1.63368, 0)], [4, 1, 1, 1, 1, 1, 1, 1, 1, 1, 1, 1, 1, 1, 1, 1, 1, 1, 1, 1, 1, 1, 1, 1, 4], [0, 1.514579231, 2.966422906, 4.342888004, 5.645649548, 6.889653673, 8.070797339, 9.183112822, 10.237837631, 11.23608981, 12.196917133, 13.117904763, 14.006315217, 14.860292005, 15.684850496, 16.495566347, 17.293863258, 18.081168691, 18.873799386, 19.668575398, 20.485475899, 21.319695627, 22.176102692, 23.072510053, 24], False, 3, [1, 1, 1, 1, 1, 1, 1, 1, 1, 1, 1, 1, 1, 1, 1, 1, 1, 1, 1, 1, 1, 1, 1, 1, 1, 1, 1], False), False)
sketch7.addGeometry(Part.BSplineCurve([App.Vector(0.414184, 1.404219, 0), App.Vector(0.402439, 1.396077, 0), App.Vector(0.378221, 1.379288, 0), App.Vector(0.336926, 1.359638, 0), App.Vector(0.291467, 1.34211, 0), App.Vector(0.240951, 1.328354, 0), App.Vector(0.18578, 1.317579, 0), App.Vector(0.125846, 1.309797, 0), App.Vector(0.061175, 1.305393, 0), App.Vector(0.016458, 1.304744, 0), App.Vector(-0.006667, 1.304409, 0)], [4, 1, 1, 1, 1, 1, 1, 1, 4], [0, 0.779365345, 1.607084704, 2.489375761, 3.438383567, 4.461919411, 5.557722155, 6.737039282, 8], False, 3, [1, 1, 1, 1, 1, 1, 1, 1, 1, 1, 1], False), False)
sketch7.addGeometry(Part.BSplineCurve([App.Vector(0.513171, 1.63368, 0), App.Vector(0.512832, 1.6218, 0), App.Vector(0.512171, 1.598636, 0), App.Vector(0.507682, 1.564808, 0), App.Vector(0.499781, 1.533058, 0), App.Vector(0.489184, 1.503119, 0), App.Vector(0.47501, 1.475327, 0), App.Vector(0.457764, 1.44955, 0), App.Vector(0.437849, 1.42527, 0), App.Vector(0.422136, 1.411293, 0), App.Vector(0.414184, 1.404219, 0)], [4, 1, 1, 1, 1, 1, 1, 1, 4], [0, 1.10322584, 2.150986741, 3.161425019, 4.136713905, 5.093944212, 6.049774532, 7.013026876, 8], False, 3, [1, 1, 1, 1, 1, 1, 1, 1, 1, 1, 1], False), False)
sketch7.addGeometry(Part.BSplineCurve([App.Vector(-0.006667, 1.962952, 0), App.Vector(0.007946, 1.962817, 0), App.Vector(0.036494, 1.962552, 0), App.Vector(0.07823, 1.960984, 0), App.Vector(0.117884, 1.957999, 0), App.Vector(0.155547, 1.954329, 0), App.Vector(0.191116, 1.948768, 0), App.Vector(0.224686, 1.942816, 0), App.Vector(0.256141, 1.935357, 0), App.Vector(0.285591, 1.926709, 0), App.Vector(0.313216, 1.917051, 0), App.Vector(0.339056, 1.906412, 0), App.Vector(0.363042, 1.894415, 0), App.Vector(0.385266, 1.88129, 0), App.Vector(0.405728, 1.867004, 0), App.Vector(0.424578, 1.851816, 0), App.Vector(0.44155, 1.835297, 0), App.Vector(0.45656, 1.817481, 0), App.Vector(0.47008, 1.798726, 0), App.Vector(0.481656, 1.778659, 0), App.Vector(0.491247, 1.757368, 0), App.Vector(0.499447, 1.734995, 0), App.Vector(0.505455, 1.711314, 0), App.Vector(0.510054, 1.686511, 0), App.Vector(0.512762, 1.660494, 0), App.Vector(0.513033, 1.642741, 0), App.Vector(0.513171, 1.63368, 0)], [4, 1, 1, 1, 1, 1, 1, 1, 1, 1, 1, 1, 1, 1, 1, 1, 1, 1, 1, 1, 1, 1, 1, 1, 4], [0, 1.509004079, 2.9481365, 4.311841541, 5.615149582, 6.854413858, 8.028470806, 9.134999426, 10.19077436, 11.196702255, 12.155743144, 13.07445799, 13.963752978, 14.818580019, 15.649443378, 16.460966408, 17.260058134, 18.052243746, 18.845663614, 19.647670084, 20.461076897, 21.302979722, 22.167206202, 23.06450606, 24], False, 3, [1, 1, 1, 1, 1, 1, 1, 1, 1, 1, 1, 1, 1, 1, 1, 1, 1, 1, 1, 1, 1, 1, 1, 1, 1, 1, 1], False), False)
sketch7.addGeometry(Part.BSplineCurve([App.Vector(-0.527327, 1.63368, 0), App.Vector(-0.526946, 1.646876, 0), App.Vector(-0.526197, 1.672799, 0), App.Vector(-0.519894, 1.710595, 0), App.Vector(-0.509601, 1.74634, 0), App.Vector(-0.495165, 1.779747, 0), App.Vector(-0.477005, 1.810526, 0), App.Vector(-0.454609, 1.837789, 0), App.Vector(-0.428797, 1.861696, 0), App.Vector(-0.398936, 1.881673, 0), App.Vector(-0.365917, 1.89915, 0), App.Vector(-0.329565, 1.914672, 0), App.Vector(-0.289928, 1.928705, 0), App.Vector(-0.254447, 1.938663, 0), App.Vector(-0.223819, 1.945766, 0), App.Vector(-0.198558, 1.950467, 0), App.Vector(-0.171301, 1.95437, 0), App.Vector(-0.142114, 1.957361, 0), App.Vector(-0.11103, 1.959814, 0), App.Vector(-0.078029, 1.961709, 0), App.Vector(-0.04303, 1.962671, 0), App.Vector(-0.019015, 1.962856, 0), App.Vector(-0.006667, 1.962952, 0)], [4, 1, 1, 1, 1, 1, 1, 1, 1, 1, 1, 1, 1, 1, 1, 1, 1, 1, 1, 1, 4], [0, 1.134369906, 2.228515181, 3.285355733, 4.326599491, 5.350616376, 6.348601676, 7.350764122, 8.365406289, 9.429174435, 10.560286681, 11.762070813, 13.043401781, 13.727542782, 14.465843617, 15.252693982, 16.095180924, 16.988916914, 17.934437918, 18.937902156, 20], False, 3, [1, 1, 1, 1, 1, 1, 1, 1, 1, 1, 1, 1, 1, 1, 1, 1, 1, 1, 1, 1, 1, 1, 1], False), False)
sketch7.addGeometry(Part.BSplineCurve([App.Vector(-0.338408, 1.495592, 0), App.Vector(-0.330224, 1.490696, 0), App.Vector(-0.31294, 1.480358, 0), App.Vector(-0.2829, 1.468795, 0), App.Vector(-0.24851, 1.45854, 0), App.Vector(-0.209345, 1.450212, 0), App.Vector(-0.165461, 1.444049, 0), App.Vector(-0.116926, 1.439276, 0), App.Vector(-0.063561, 1.436772, 0), App.Vector(-0.026425, 1.436342, 0), App.Vector(-0.007078, 1.436117, 0)], [4, 1, 1, 1, 1, 1, 1, 1, 4], [0, 0.671109831, 1.417242661, 2.260125669, 3.199948126, 4.23589883, 5.382398214, 6.636276086, 8], False, 3, [1, 1, 1, 1, 1, 1, 1, 1, 1, 1, 1], False), False)
sketch7.addGeometry(Part.BSplineCurve([App.Vector(-0.40879, 1.63224, 0), App.Vector(-0.408613, 1.625435, 0), App.Vector(-0.408264, 1.612016, 0), App.Vector(-0.404877, 1.592385, 0), App.Vector(-0.399346, 1.573695, 0), App.Vector(-0.391368, 1.556073, 0), App.Vector(-0.381471, 1.539343, 0), App.Vector(-0.369432, 1.523484, 0), App.Vector(-0.354883, 1.508878, 0), App.Vector(-0.343982, 1.500087, 0), App.Vector(-0.338408, 1.495592, 0)], [4, 1, 1, 1, 1, 1, 1, 1, 4], [0, 1.021462953, 2.014194051, 2.982449609, 3.941891643, 4.91211921, 5.897280499, 6.924703483, 8], False, 3, [1, 1, 1, 1, 1, 1, 1, 1, 1, 1, 1], False), False)
sketch7.addGeometry(Part.BSplineCurve([App.Vector(-0.007078, 1.831243, 0), App.Vector(-0.026427, 1.831118, 0), App.Vector(-0.063497, 1.830879, 0), App.Vector(-0.116493, 1.828179, 0), App.Vector(-0.164424, 1.823946, 0), App.Vector(-0.207334, 1.818157, 0), App.Vector(-0.245176, 1.810463, 0), App.Vector(-0.27803, 1.801131, 0), App.Vector(-0.305827, 1.790011, 0), App.Vector(-0.328846, 1.77679, 0), App.Vector(-0.347728, 1.762071, 0), App.Vector(-0.364071, 1.746696, 0), App.Vector(-0.377971, 1.730281, 0), App.Vector(-0.389122, 1.712534, 0), App.Vector(-0.398118, 1.694027, 0), App.Vector(-0.404309, 1.674336, 0), App.Vector(-0.408113, 1.653653, 0), App.Vector(-0.408561, 1.639459, 0), App.Vector(-0.40879, 1.63224, 0)], [4, 1, 1, 1, 1, 1, 1, 1, 1, 1, 1, 1, 1, 1, 1, 1, 4], [0, 1.850066095, 3.544656626, 5.0727657, 6.45041401, 7.682899467, 8.762389858, 9.712573485, 10.538438529, 11.291566246, 11.996865408, 12.681389046, 13.341983376, 13.996294293, 14.643563182, 15.31009126, 16], False, 3, [1, 1, 1, 1, 1, 1, 1, 1, 1, 1, 1, 1, 1, 1, 1, 1, 1, 1, 1], False), False)
sketch7.addGeometry(Part.BSplineCurve([App.Vector(0.394633, 1.63368, 0), App.Vector(0.394373, 1.640483, 0), App.Vector(0.393859, 1.653973, 0), App.Vector(0.390427, 1.673831, 0), App.Vector(0.384022, 1.692753, 0), App.Vector(0.375628, 1.710892, 0), App.Vector(0.364804, 1.728261, 0), App.Vector(0.351188, 1.744452, 0), App.Vector(0.335564, 1.760187, 0), App.Vector(0.317133, 1.775099, 0), App.Vector(0.294785, 1.788955, 0), App.Vector(0.267067, 1.800059, 0), App.Vector(0.234371, 1.809936, 0), App.Vector(0.196338, 1.81777, 0), App.Vector(0.15302, 1.823764, 0), App.Vector(0.104404, 1.828234, 0), App.Vector(0.050436, 1.830868, 0), App.Vector(0.012681, 1.831114, 0), App.Vector(-0.007078, 1.831243, 0)], [4, 1, 1, 1, 1, 1, 1, 1, 1, 1, 1, 1, 1, 1, 1, 1, 4], [0, 0.652578524, 1.294050225, 1.924494109, 2.563260593, 3.207694917, 3.880813851, 4.587993952, 5.331957758, 6.150083828, 7.099581593, 8.186077474, 9.42362516, 10.819375359, 12.378900244, 14.104883934, 16], False, 3, [1, 1, 1, 1, 1, 1, 1, 1, 1, 1, 1, 1, 1, 1, 1, 1, 1, 1, 1], False), False)
sketch7.addGeometry(Part.BSplineCurve([App.Vector(-0.007078, 1.436117, 0), App.Vector(0.012681, 1.436248, 0), App.Vector(0.050505, 1.436498, 0), App.Vector(0.104542, 1.439114, 0), App.Vector(0.153291, 1.443616, 0), App.Vector(0.196685, 1.449568, 0), App.Vector(0.234781, 1.457428, 0), App.Vector(0.267483, 1.467296, 0), App.Vector(0.295183, 1.47842, 0), App.Vector(0.317539, 1.492186, 0), App.Vector(0.335762, 1.507258, 0), App.Vector(0.351434, 1.522819, 0), App.Vector(0.364755, 1.539235, 0), App.Vector(0.375862, 1.556399, 0), App.Vector(0.384272, 1.574577, 0), App.Vector(0.390367, 1.59357, 0), App.Vector(0.393875, 1.613382, 0), App.Vector(0.394379, 1.626876, 0), App.Vector(0.394633, 1.63368, 0)], [4, 1, 1, 1, 1, 1, 1, 1, 1, 1, 1, 1, 1, 1, 1, 1, 4], [0, 1.89448813, 3.626469325, 5.185477471, 6.587276848, 7.82441448, 8.910550357, 9.859733512, 10.6775885, 11.416198291, 12.123144072, 12.791880183, 13.439617036, 14.078171869, 14.70637855, 15.347637704, 16], False, 3, [1, 1, 1, 1, 1, 1, 1, 1, 1, 1, 1, 1, 1, 1, 1, 1, 1, 1, 1], False), False)
sketch7.addConstraint(Sketcher.Constraint("Block", 15))
sketch7.addConstraint(Sketcher.Constraint("Block", 17))
sketch7.addConstraint(Sketcher.Constraint("Block", 19))
sketch7.addConstraint(Sketcher.Constraint("Block", 20))
sketch7.addConstraint(Sketcher.Constraint("Block", 21))
sketch7.addConstraint(Sketcher.Constraint("Block", 22))
sketch7.addConstraint(Sketcher.Constraint("Block", 23))
sketch7.addConstraint(Sketcher.Constraint("Block", 24))
sketch7.addConstraint(Sketcher.Constraint("Block", 25))
sketch7.addConstraint(Sketcher.Constraint("Block", 26))
sketch7.addConstraint(Sketcher.Constraint("Block", 27))
sketch7.addConstraint(Sketcher.Constraint("Block", 28))
sketch7.addConstraint(Sketcher.Constraint("Coincident", 0, 2, 1, 1))
sketch7.addConstraint(Sketcher.Constraint("Coincident", 1, 2, 2, 1))
sketch7.addConstraint(Sketcher.Constraint("Coincident", 2, 2, 3, 1))
sketch7.addConstraint(Sketcher.Constraint("Coincident", 3, 2, 4, 1))
sketch7.addConstraint(Sketcher.Constraint("Coincident", 4, 2, 5, 1))
sketch7.addConstraint(Sketcher.Constraint("Coincident", 5, 2, 6, 1))
sketch7.addConstraint(Sketcher.Constraint("Coincident", 6, 2, 7, 1))
sketch7.addConstraint(Sketcher.Constraint("Coincident", 7, 2, 8, 1))
sketch7.addConstraint(Sketcher.Constraint("Coincident", 8, 2, 9, 1))
sketch7.addConstraint(Sketcher.Constraint("Coincident", 9, 2, 10, 1))
sketch7.addConstraint(Sketcher.Constraint("Coincident", 10, 2, 11, 1))
sketch7.addConstraint(Sketcher.Constraint("Coincident", 11, 2, 0, 1))
sketch7.addConstraint(Sketcher.Constraint("Coincident", 12, 2, 13, 1))
sketch7.addConstraint(Sketcher.Constraint("Coincident", 13, 2, 14, 1))
sketch7.addConstraint(Sketcher.Constraint("Coincident", 14, 2, 15, 2))
sketch7.addConstraint(Sketcher.Constraint("Coincident", 15, 1, 16, 1))
sketch7.addConstraint(Sketcher.Constraint("Coincident", 16, 2, 17, 2))
sketch7.addConstraint(Sketcher.Constraint("Coincident", 17, 1, 18, 1))
sketch7.addConstraint(Sketcher.Constraint("Coincident", 18, 2, 12, 1))
sketch7.addConstraint(Sketcher.Constraint("Horizontal", 0))
sketch7.addConstraint(Sketcher.Constraint("Vertical", 1))
sketch7.addConstraint(Sketcher.Constraint("Horizontal", 2))
sketch7.addConstraint(Sketcher.Constraint("Vertical", 3))
sketch7.addConstraint(Sketcher.Constraint("Horizontal", 4))
sketch7.addConstraint(Sketcher.Constraint("Vertical", 5))
sketch7.addConstraint(Sketcher.Constraint("Horizontal", 6))
sketch7.addConstraint(Sketcher.Constraint("Vertical", 7))
sketch7.addConstraint(Sketcher.Constraint("Horizontal", 8))
sketch7.addConstraint(Sketcher.Constraint("Vertical", 9))
sketch7.addConstraint(Sketcher.Constraint("Horizontal", 10))
sketch7.addConstraint(Sketcher.Constraint("Vertical", 11))
sketch7.addConstraint(Sketcher.Constraint("Vertical", 12))
sketch7.addConstraint(Sketcher.Constraint("Horizontal", 13))
sketch7.addConstraint(Sketcher.Constraint("Vertical", 14))
sketch7.addConstraint(Sketcher.Constraint("Horizontal", 18))
sketch7.addConstraint(Sketcher.Constraint("Horizontal", 4, 2, 7, 2))
sketch7.addConstraint(Sketcher.Constraint("Vertical", 1, 2, 12, 2))
sketch7.addConstraint(Sketcher.Constraint("Vertical", 11, 2, 13, 2))
sketch7.addConstraint(Sketcher.Constraint("Equal", 2, 6))
sketch7.addConstraint(Sketcher.Constraint("Equal", 6, 10))
sketch7.addConstraint(Sketcher.Constraint("DistanceX", -1, 1, 0, 2, 0.5))
sketch7.addConstraint(Sketcher.Constraint("DistanceX", 8, 2, 8, 1, 0.316101))
sketch7.addConstraint(Sketcher.Constraint("DistanceY", 1, 1, 1, 2, 0.750739))
sketch7.addConstraint(Sketcher.Constraint("DistanceY", 3, 2, 3, 1, 0.60586))
sketch7.addConstraint(Sketcher.Constraint("DistanceY", 9, 1, 9, 2, 0.579518))
sketch7.addConstraint(Sketcher.Constraint("DistanceY", 12, 1, 12, 2, 0.131709))
sketch7.addConstraint(Sketcher.Constraint("DistanceY", 9, 2, 12, 2, 0.632202))
sketch7.addConstraint(Sketcher.Constraint("DistanceX", 2, 2, 2, 1, 0.118538))
sketch7.addConstraint(Sketcher.Constraint("DistanceY", 5, 1, 5, 2, 0.540005))
pad5 = body.newObject("PartDesign::Pad", "Pad004")
pad5.Profile = sketch7
pad5.Length = 0.02

# Sketch on XY plane
sketch8 = body.newObject("Sketcher::SketchObject", "Sketch007")
sketch8.AttachmentSupport = (doc.getObject("XY_Plane"), [""])
sketch8.MapMode = "FlatFace"
sketch8.AttachmentOffset = App.Placement(App.Vector(0, 0, 0.1), App.Rotation())
sketch8.addGeometry(Part.LineSegment(App.Vector(-0.6, -4.5, 0), App.Vector(-0.6, -1.6, 0)), False)
sketch8.addGeometry(Part.LineSegment(App.Vector(-0.6, -1.6, 0), App.Vector(0.6, -1.6, 0)), False)
sketch8.addGeometry(Part.LineSegment(App.Vector(0.6, -1.6, 0), App.Vector(0.6, -4.5, 0)), False)
sketch8.addGeometry(Part.LineSegment(App.Vector(0.6, -4.5, 0), App.Vector(-0.6, -4.5, 0)), False)
sketch8.addGeometry(Part.LineSegment(App.Vector(-0.6, 1.6, 0), App.Vector(-0.6, 4.5, 0)), False)
sketch8.addGeometry(Part.LineSegment(App.Vector(-0.6, 4.5, 0), App.Vector(0.6, 4.5, 0)), False)
sketch8.addGeometry(Part.LineSegment(App.Vector(0.6, 4.5, 0), App.Vector(0.6, 1.6, 0)), False)
sketch8.addGeometry(Part.LineSegment(App.Vector(0.6, 1.6, 0), App.Vector(-0.6, 1.6, 0)), False)
sketch8.addConstraint(Sketcher.Constraint("Coincident", 0, 2, 1, 1))
sketch8.addConstraint(Sketcher.Constraint("Coincident", 1, 2, 2, 1))
sketch8.addConstraint(Sketcher.Constraint("Coincident", 2, 2, 3, 1))
sketch8.addConstraint(Sketcher.Constraint("Coincident", 3, 2, 0, 1))
sketch8.addConstraint(Sketcher.Constraint("Coincident", 4, 2, 5, 1))
sketch8.addConstraint(Sketcher.Constraint("Coincident", 5, 2, 6, 1))
sketch8.addConstraint(Sketcher.Constraint("Coincident", 6, 2, 7, 1))
sketch8.addConstraint(Sketcher.Constraint("Coincident", 7, 2, 4, 1))
sketch8.addConstraint(Sketcher.Constraint("Vertical", 0))
sketch8.addConstraint(Sketcher.Constraint("Horizontal", 1))
sketch8.addConstraint(Sketcher.Constraint("Vertical", 2))
sketch8.addConstraint(Sketcher.Constraint("Horizontal", 3))
sketch8.addConstraint(Sketcher.Constraint("Vertical", 4))
sketch8.addConstraint(Sketcher.Constraint("Horizontal", 5))
sketch8.addConstraint(Sketcher.Constraint("Vertical", 6))
sketch8.addConstraint(Sketcher.Constraint("Horizontal", 7))
sketch8.addConstraint(Sketcher.Constraint("Symmetric", 2, 2, 4, 2, -1, 1))
sketch8.addConstraint(Sketcher.Constraint("Symmetric", 0, 2, 6, 2, -1, 1))
sketch8.addConstraint(Sketcher.Constraint("Vertical", 3, 2, 4, 2))
sketch8.addConstraint(Sketcher.Constraint("DistanceX", 1, 1, 1, 2, 1.1))
sketch8.addConstraint(Sketcher.Constraint("DistanceY", 0, 1, 0, 2, 2.9))
sketch8.addConstraint(Sketcher.Constraint("DistanceY", 3, 2, 4, 2, 9.0))
pad6 = body.newObject("PartDesign::Pad", "Pad005")
pad6.Profile = sketch8
pad6.Length = 0.25
pad6.Reversed = True

doc.recompute()
